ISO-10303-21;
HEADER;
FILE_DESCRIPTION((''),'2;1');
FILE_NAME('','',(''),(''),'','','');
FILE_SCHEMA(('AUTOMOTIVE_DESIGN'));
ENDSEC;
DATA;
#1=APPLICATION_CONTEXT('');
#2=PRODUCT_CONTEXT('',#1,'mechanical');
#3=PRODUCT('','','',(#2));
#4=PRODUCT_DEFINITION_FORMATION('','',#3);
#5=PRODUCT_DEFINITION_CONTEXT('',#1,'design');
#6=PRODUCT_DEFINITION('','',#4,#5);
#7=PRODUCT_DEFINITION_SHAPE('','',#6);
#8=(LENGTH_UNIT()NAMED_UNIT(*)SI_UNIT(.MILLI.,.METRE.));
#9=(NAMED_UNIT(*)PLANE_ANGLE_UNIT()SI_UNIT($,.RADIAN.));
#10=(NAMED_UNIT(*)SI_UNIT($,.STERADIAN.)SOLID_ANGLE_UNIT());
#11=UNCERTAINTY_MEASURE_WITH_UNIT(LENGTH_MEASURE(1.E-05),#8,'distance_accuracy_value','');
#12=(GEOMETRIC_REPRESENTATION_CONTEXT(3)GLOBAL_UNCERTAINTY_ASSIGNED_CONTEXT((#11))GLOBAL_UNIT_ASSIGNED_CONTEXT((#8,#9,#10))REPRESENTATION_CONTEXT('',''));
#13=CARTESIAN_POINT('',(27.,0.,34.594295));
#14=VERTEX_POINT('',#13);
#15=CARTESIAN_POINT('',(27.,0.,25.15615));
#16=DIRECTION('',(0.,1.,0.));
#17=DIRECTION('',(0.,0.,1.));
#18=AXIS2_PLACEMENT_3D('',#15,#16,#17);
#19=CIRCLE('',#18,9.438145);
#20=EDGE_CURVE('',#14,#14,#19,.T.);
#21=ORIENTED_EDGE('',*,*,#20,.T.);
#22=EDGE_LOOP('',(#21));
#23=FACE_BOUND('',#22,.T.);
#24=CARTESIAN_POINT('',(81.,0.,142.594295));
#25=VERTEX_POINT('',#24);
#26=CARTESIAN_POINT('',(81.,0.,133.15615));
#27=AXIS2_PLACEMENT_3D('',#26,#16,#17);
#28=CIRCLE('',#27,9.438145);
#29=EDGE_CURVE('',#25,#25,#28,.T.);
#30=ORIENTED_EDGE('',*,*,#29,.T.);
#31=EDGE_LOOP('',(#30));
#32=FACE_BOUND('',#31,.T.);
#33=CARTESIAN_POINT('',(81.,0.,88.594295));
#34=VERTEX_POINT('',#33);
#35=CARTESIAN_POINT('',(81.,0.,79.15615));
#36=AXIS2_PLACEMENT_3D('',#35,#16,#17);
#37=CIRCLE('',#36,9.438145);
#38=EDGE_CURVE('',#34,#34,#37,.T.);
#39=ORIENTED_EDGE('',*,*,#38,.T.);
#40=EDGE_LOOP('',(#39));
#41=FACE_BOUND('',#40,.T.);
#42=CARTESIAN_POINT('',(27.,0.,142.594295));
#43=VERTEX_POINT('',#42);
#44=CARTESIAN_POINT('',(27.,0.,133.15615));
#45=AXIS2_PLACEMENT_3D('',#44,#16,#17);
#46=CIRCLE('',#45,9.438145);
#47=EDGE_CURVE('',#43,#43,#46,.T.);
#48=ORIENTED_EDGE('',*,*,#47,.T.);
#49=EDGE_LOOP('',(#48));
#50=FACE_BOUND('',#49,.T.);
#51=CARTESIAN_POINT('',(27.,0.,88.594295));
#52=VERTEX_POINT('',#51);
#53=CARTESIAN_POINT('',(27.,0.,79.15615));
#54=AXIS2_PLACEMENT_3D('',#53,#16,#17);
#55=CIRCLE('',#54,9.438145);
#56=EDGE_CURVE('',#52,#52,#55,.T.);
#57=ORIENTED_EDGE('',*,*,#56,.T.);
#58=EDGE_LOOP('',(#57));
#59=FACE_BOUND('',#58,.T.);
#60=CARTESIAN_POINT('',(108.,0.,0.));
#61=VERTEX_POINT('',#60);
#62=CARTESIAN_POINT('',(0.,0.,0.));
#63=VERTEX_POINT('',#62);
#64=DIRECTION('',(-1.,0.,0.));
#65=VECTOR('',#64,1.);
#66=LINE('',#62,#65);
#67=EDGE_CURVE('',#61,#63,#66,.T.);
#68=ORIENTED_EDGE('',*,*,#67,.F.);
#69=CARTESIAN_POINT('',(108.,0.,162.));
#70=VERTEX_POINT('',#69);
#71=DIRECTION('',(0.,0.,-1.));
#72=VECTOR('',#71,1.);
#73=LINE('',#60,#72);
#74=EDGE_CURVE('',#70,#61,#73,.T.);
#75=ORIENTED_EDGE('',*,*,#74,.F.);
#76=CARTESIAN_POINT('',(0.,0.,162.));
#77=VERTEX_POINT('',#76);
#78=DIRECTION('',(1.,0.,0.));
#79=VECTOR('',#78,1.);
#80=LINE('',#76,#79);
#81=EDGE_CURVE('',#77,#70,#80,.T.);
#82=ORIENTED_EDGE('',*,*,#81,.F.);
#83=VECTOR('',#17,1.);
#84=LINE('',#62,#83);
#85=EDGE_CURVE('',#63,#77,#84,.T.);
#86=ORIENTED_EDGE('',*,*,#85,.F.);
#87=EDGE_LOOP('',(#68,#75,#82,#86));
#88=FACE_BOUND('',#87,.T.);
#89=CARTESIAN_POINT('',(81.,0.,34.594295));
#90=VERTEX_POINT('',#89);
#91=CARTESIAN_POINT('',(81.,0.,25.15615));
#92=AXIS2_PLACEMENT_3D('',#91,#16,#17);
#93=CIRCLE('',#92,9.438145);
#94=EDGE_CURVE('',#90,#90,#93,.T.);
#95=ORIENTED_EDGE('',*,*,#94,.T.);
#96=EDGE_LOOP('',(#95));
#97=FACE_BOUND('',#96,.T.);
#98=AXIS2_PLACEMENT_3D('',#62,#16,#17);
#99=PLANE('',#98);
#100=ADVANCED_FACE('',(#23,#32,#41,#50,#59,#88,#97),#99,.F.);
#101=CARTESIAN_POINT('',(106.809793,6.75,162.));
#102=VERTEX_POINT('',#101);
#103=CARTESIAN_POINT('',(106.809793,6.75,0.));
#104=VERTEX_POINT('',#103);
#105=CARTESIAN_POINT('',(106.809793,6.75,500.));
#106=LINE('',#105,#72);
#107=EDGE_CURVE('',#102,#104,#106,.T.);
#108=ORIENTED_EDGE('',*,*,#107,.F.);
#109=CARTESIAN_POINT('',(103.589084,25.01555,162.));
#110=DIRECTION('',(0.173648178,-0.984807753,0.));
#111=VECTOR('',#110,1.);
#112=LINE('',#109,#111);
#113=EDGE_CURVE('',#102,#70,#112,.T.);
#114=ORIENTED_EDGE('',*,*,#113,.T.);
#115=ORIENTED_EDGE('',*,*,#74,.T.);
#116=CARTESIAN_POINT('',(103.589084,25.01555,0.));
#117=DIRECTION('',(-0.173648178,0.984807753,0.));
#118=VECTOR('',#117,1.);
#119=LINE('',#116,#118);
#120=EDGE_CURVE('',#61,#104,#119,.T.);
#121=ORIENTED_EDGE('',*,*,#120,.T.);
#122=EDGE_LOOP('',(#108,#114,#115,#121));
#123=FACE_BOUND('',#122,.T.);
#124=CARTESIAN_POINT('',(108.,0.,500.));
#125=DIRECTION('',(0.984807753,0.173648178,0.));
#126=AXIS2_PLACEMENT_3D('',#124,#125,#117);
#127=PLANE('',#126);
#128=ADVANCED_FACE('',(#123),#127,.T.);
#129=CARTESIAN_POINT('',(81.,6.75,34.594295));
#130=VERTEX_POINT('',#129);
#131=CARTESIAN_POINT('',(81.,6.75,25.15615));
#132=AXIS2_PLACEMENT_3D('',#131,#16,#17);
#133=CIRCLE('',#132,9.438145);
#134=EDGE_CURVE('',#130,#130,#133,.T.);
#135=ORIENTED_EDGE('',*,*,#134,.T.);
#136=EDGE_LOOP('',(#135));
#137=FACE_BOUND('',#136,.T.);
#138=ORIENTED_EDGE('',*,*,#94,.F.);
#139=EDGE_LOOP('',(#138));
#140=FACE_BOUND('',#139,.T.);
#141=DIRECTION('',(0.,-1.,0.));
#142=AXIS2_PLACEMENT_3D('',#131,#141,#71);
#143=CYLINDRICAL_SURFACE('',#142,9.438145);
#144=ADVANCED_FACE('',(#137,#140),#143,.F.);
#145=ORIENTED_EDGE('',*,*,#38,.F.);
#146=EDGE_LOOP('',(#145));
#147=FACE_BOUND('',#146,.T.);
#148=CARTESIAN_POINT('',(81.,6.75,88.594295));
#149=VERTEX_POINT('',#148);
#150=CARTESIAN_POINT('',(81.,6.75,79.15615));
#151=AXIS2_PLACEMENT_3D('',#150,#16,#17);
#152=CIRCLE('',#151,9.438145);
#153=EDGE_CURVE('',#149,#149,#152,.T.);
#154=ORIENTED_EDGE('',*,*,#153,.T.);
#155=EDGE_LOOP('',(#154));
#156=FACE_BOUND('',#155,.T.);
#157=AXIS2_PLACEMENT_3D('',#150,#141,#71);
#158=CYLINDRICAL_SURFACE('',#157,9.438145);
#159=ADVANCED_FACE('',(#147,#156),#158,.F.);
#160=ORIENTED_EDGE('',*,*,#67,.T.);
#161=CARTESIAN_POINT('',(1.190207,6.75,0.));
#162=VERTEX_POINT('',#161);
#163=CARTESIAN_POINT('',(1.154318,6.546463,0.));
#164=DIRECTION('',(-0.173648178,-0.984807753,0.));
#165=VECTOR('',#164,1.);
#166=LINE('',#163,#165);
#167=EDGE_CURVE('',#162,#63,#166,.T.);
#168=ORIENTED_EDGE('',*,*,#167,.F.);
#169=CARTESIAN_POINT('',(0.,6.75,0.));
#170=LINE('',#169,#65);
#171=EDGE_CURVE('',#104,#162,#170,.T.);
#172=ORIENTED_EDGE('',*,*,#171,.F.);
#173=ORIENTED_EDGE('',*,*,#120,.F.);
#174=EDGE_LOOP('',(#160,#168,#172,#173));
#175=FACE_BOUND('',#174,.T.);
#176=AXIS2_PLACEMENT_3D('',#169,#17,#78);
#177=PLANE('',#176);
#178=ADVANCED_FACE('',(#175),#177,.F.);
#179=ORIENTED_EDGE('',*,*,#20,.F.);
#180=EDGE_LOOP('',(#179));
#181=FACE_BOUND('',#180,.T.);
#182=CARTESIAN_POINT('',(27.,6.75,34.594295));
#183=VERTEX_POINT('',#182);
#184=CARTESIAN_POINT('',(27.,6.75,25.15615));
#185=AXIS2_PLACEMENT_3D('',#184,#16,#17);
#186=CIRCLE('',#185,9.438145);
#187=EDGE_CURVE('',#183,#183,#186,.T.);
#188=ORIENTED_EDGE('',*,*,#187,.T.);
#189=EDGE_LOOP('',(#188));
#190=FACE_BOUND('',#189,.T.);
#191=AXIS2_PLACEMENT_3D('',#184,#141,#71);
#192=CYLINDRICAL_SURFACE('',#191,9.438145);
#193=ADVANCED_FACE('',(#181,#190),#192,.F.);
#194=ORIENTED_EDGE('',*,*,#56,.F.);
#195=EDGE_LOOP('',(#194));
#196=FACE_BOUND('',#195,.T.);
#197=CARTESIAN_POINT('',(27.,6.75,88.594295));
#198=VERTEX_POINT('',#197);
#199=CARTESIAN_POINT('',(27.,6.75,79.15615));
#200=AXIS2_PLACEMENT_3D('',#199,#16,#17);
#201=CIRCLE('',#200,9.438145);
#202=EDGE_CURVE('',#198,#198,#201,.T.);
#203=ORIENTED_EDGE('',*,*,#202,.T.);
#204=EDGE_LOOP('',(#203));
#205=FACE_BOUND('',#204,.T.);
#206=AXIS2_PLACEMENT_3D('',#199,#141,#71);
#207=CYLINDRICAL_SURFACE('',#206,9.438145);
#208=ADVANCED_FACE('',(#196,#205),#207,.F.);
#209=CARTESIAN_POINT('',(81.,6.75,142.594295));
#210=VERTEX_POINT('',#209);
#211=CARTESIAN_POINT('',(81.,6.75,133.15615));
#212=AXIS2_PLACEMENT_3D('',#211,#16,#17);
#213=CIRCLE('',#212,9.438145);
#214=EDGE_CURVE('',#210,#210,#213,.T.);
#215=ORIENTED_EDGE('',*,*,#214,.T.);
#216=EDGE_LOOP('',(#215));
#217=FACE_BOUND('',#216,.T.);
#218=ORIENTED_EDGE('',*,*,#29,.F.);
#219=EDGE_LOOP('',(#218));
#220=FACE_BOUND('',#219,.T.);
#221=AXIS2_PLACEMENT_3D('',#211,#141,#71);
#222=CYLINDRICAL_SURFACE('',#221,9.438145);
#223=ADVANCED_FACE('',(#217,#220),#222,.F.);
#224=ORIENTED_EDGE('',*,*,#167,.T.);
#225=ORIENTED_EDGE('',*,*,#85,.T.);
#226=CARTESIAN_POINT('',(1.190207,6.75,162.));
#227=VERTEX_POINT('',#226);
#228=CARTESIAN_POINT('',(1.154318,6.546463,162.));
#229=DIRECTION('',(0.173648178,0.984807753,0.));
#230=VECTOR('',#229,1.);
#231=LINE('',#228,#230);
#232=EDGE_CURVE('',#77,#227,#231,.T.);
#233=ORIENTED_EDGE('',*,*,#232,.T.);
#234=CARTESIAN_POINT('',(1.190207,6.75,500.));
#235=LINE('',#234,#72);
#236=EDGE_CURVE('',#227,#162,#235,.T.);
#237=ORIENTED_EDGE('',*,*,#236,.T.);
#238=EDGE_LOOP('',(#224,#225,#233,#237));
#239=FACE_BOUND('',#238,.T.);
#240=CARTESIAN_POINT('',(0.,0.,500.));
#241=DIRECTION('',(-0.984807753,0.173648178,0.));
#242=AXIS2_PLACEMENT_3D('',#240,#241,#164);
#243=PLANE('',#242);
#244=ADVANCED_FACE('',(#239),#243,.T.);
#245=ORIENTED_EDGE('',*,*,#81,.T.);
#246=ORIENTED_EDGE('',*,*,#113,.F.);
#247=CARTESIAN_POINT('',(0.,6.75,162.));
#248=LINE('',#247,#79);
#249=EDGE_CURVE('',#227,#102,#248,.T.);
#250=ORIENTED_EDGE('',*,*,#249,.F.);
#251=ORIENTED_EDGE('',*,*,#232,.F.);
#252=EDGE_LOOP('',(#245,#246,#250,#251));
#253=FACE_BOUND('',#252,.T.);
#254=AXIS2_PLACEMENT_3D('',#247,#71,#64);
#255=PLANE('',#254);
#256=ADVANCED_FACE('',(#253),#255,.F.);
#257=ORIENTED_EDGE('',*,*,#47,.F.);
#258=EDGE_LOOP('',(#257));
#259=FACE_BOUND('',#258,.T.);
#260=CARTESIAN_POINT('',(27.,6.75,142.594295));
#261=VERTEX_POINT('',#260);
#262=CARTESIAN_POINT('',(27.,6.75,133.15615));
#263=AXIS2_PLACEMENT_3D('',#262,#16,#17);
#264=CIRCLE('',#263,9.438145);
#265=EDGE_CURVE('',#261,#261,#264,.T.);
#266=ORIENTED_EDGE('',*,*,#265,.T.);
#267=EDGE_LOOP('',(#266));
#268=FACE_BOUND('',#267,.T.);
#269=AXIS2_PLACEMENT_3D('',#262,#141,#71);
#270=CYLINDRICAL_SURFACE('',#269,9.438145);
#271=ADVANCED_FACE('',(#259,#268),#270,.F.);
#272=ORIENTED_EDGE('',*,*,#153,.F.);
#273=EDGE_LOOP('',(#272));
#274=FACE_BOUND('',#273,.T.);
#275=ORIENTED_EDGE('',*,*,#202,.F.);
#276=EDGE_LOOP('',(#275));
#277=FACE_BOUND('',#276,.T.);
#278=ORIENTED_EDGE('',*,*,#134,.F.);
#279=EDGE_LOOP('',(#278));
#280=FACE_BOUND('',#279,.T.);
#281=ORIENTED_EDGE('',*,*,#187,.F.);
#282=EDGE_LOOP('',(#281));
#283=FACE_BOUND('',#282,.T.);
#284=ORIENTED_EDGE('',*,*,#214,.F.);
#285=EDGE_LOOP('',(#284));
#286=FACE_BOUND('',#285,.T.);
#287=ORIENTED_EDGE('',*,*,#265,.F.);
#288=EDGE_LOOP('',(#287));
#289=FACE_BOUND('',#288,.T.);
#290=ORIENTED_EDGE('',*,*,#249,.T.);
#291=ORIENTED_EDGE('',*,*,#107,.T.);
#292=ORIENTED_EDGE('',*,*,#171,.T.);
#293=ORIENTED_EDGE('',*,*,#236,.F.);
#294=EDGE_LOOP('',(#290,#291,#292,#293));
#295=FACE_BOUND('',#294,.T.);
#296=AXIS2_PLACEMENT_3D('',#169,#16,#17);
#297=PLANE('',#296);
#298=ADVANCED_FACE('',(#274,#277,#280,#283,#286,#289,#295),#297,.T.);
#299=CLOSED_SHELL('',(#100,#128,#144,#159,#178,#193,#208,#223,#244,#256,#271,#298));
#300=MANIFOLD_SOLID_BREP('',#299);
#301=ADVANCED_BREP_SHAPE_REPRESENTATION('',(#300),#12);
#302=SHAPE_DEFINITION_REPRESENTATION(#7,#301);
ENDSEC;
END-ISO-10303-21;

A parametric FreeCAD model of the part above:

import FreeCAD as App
import Part
import Sketcher
from FreeCAD import Vector
Q = App.Units.Quantity


def add_polygon(sketch, points):
    """Adds a closed chain of lines whose ends are joined by coincident constraints."""
    first, n = sketch.GeometryCount, len(points)
    for a, b in zip(points, points[1:] + points[:1]):
        sketch.addGeometry(Part.LineSegment(App.Vector(*a, 0), App.Vector(*b, 0)), False)
    for i in range(n):
        sketch.addConstraint(Sketcher.Constraint("Coincident", first + i, 2, first + (i + 1) % n, 1))

doc = App.newDocument("Part")
body = doc.addObject("PartDesign::Body", "Body")

sketch1 = body.newObject("Sketcher::SketchObject", "Sketch")
sketch1.AttachmentSupport = (doc.getObject("XZ_Plane"), [""])
sketch1.MapMode = "FlatFace"
add_polygon(sketch1, [(0, 0), (0, 162), (108, 162), (108, 0)])
sketch1.addGeometry(Part.Circle(Vector(27, 133, 0), Vector(0, 0, 1), 9), False)
sketch1.addGeometry(Part.Circle(Vector(81, 133, 0), Vector(0, 0, 1), 9), False)
sketch1.addGeometry(Part.Circle(Vector(27, 79, 0), Vector(0, 0, 1), 9), False)
sketch1.addGeometry(Part.Circle(Vector(27, 25, 0), Vector(0, 0, 1), 9), False)
sketch1.addGeometry(Part.Circle(Vector(81, 79, 0), Vector(0, 0, 1), 9), False)
sketch1.addGeometry(Part.Circle(Vector(81, 25, 0), Vector(0, 0, 1), 9), False)
sketch1.addConstraint(Sketcher.Constraint("Vertical", 0))
sketch1.addConstraint(Sketcher.Constraint("Horizontal", 1))
sketch1.addConstraint(Sketcher.Constraint("Vertical", 2))
sketch1.addConstraint(Sketcher.Constraint("Horizontal", 3))
sketch1.addConstraint(Sketcher.Constraint("Coincident", 3, 2, -1, 1))
sketch1.addConstraint(Sketcher.Constraint("Equal", 4, 5))
sketch1.addConstraint(Sketcher.Constraint("Equal", 5, 6))
sketch1.addConstraint(Sketcher.Constraint("Equal", 6, 7))
sketch1.addConstraint(Sketcher.Constraint("Equal", 7, 8))
sketch1.addConstraint(Sketcher.Constraint("Equal", 8, 9))
sketch1.addConstraint(Sketcher.Constraint("Horizontal", 4, 3, 5, 3))
sketch1.addConstraint(Sketcher.Constraint("Horizontal", 6, 3, 8, 3))
sketch1.addConstraint(Sketcher.Constraint("Horizontal", 7, 3, 9, 3))
sketch1.addConstraint(Sketcher.Constraint("Vertical", 4, 3, 6, 3))
sketch1.addConstraint(Sketcher.Constraint("Vertical", 6, 3, 7, 3))
sketch1.addConstraint(Sketcher.Constraint("Vertical", 5, 3, 8, 3))
sketch1.addConstraint(Sketcher.Constraint("Vertical", 8, 3, 9, 3))
sketch1.addConstraint(Sketcher.Constraint("DistanceX", 1, 1, 1, 2, Q("108 mm")))
sketch1.addConstraint(Sketcher.Constraint("DistanceY", 0, 1, 0, 2, Q("162 mm")))
sketch1.addConstraint(Sketcher.Constraint("DistanceX", -1, 1, 4, 3, Q("27 mm")))
sketch1.addConstraint(Sketcher.Constraint("DistanceX", -1, 1, 5, 3, Q("81 mm")))
sketch1.addConstraint(Sketcher.Constraint("DistanceY", 6, 3, 4, 3, Q("54 mm")))
sketch1.addConstraint(Sketcher.Constraint("DistanceY", 7, 3, 6, 3, Q("54 mm")))
sketch1.addConstraint(Sketcher.Constraint("Diameter", 4, Q("18.87629 mm")))
sketch1.addConstraint(Sketcher.Constraint("DistanceY", -1, 1, 4, 3, Q("133.15615 mm")))
pad1 = body.newObject("PartDesign::Pad", "Pad")
pad1.Profile = sketch1
pad1.Length = 6.75
pad1.Reversed = True

sketch2 = body.newObject("Sketcher::SketchObject", "Sketch001")
sketch2.AttachmentSupport = (doc.getObject("XY_Plane"), [""])
sketch2.MapMode = "FlatFace"
add_polygon(sketch2, [(0, 6.8), (0, 0), (1.2, 6.8)])
add_polygon(sketch2, [(108, 0), (108, 6.8), (106.8, 6.8)])
sketch2.addConstraint(Sketcher.Constraint("Vertical", 0))
sketch2.addConstraint(Sketcher.Constraint("Horizontal", 2))
sketch2.addConstraint(Sketcher.Constraint("Vertical", 3))
sketch2.addConstraint(Sketcher.Constraint("Horizontal", 4))
sketch2.addConstraint(Sketcher.Constraint("Coincident", 0, 2, -1, 1))
sketch2.addConstraint(Sketcher.Constraint("PointOnObject", 5, 2, -1))
sketch2.addConstraint(Sketcher.Constraint("Horizontal", 2, 2, 3, 2))
sketch2.addConstraint(Sketcher.Constraint("Equal", 2, 4))
sketch2.addConstraint(Sketcher.Constraint("Angle", 1, Q("80 deg")))
sketch2.addConstraint(Sketcher.Constraint("DistanceX", -1, 1, 3, 2, Q("108 mm")))
sketch2.addConstraint(Sketcher.Constraint("DistanceY", 0, 2, 0, 1, Q("6.75 mm")))
pocket1 = body.newObject("PartDesign::Pocket", "Pocket")
pocket1.Profile = sketch2
pocket1.Type = "ThroughAll"
pocket1.Midplane = True

doc.recompute()
